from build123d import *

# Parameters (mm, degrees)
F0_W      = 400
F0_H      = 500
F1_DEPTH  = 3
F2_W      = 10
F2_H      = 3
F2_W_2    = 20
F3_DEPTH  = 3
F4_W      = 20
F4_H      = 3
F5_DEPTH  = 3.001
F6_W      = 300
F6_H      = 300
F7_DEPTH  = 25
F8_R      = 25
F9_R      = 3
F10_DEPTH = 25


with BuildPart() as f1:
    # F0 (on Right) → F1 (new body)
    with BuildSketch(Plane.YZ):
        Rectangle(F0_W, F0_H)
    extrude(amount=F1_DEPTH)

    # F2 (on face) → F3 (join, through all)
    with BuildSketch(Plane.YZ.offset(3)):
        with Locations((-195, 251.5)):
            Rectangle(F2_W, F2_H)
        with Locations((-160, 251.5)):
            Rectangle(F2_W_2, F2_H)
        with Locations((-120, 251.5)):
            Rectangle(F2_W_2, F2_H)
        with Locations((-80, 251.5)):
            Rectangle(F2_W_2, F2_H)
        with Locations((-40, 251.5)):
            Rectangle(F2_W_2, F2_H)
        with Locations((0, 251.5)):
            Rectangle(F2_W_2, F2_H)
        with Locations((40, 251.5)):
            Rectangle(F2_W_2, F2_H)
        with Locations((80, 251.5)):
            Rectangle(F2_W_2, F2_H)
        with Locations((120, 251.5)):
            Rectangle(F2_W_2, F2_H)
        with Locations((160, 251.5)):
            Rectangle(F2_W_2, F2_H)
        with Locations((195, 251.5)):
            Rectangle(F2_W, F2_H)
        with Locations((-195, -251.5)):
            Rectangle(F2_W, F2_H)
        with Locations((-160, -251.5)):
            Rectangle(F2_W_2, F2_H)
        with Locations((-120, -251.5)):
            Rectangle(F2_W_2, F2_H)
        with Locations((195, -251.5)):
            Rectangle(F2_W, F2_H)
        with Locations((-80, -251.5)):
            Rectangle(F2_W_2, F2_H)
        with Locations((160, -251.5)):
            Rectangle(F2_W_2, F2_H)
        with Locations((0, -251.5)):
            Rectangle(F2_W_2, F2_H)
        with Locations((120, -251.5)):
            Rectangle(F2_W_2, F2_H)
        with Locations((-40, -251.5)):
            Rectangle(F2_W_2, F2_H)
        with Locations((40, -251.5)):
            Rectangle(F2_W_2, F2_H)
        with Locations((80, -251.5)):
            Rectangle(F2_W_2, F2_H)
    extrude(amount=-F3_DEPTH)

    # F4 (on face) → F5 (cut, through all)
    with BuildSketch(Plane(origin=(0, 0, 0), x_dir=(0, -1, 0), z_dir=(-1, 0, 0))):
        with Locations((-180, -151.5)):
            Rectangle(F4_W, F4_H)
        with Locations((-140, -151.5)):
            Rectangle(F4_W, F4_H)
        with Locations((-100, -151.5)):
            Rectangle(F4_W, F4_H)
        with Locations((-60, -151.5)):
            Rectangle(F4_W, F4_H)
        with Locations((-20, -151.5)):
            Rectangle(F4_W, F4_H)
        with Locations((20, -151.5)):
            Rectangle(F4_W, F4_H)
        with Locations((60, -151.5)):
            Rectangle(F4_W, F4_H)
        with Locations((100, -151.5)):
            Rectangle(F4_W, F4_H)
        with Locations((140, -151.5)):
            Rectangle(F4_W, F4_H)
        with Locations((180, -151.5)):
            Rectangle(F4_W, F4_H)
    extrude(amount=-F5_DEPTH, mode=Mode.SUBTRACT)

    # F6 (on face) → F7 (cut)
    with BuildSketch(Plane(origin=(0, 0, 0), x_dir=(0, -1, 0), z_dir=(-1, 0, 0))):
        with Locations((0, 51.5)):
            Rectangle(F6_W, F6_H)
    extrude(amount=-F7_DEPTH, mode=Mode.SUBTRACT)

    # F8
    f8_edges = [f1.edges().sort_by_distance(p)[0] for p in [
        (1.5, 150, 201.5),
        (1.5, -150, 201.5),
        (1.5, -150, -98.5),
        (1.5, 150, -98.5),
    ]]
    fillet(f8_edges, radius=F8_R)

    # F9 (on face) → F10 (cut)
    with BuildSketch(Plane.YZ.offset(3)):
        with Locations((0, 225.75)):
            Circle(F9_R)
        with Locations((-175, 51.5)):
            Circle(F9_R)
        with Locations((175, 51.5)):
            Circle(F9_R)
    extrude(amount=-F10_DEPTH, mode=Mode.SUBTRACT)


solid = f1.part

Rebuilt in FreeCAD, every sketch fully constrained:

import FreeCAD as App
import Part
import Sketcher


def edges_at(feature, points):
    """Names of the edges that pass closest to the given points."""
    edges = feature.Shape.Edges
    near = lambda p: min(range(len(edges)), key=lambda i: edges[i].distToShape(Part.Vertex(*p))[0])
    return sorted({f"Edge{near(p) + 1}" for p in points})


def add_polygon(sketch, points):
    """Adds a closed chain of lines whose ends are joined by coincident constraints."""
    first, n = sketch.GeometryCount, len(points)
    for a, b in zip(points, points[1:] + points[:1]):
        sketch.addGeometry(Part.LineSegment(App.Vector(*a, 0), App.Vector(*b, 0)), False)
    for i in range(n):
        sketch.addConstraint(Sketcher.Constraint("Coincident", first + i, 2, first + (i + 1) % n, 1))

doc = App.newDocument("Part")
body = doc.addObject("PartDesign::Body", "Body")

# Sketch on YZ plane
sketch1 = body.newObject("Sketcher::SketchObject", "Sketch")
sketch1.AttachmentSupport = (doc.getObject("YZ_Plane"), [""])
sketch1.MapMode = "FlatFace"
add_polygon(sketch1, [(-200, 250), (-200, -250), (200, -250), (200, 250)])  # lines 0-3
sketch1.addConstraint([
    Sketcher.Constraint("Vertical", 0),
    Sketcher.Constraint("Horizontal", 1),
    Sketcher.Constraint("Vertical", 2),
    Sketcher.Constraint("Horizontal", 3),
    Sketcher.Constraint("Symmetric", 0, 2, 2, 2, -1, 1),
    Sketcher.Constraint("DistanceX", 1, 1, 1, 2, 400.0),
    Sketcher.Constraint("DistanceY", 0, 2, 0, 1, 500.0),
])
pad1 = body.newObject("PartDesign::Pad", "Pad")
pad1.Profile = sketch1
pad1.Length = 3

# Sketch on YZ plane
sketch2 = body.newObject("Sketcher::SketchObject", "Sketch001")
sketch2.AttachmentSupport = (doc.getObject("YZ_Plane"), [""])
sketch2.MapMode = "FlatFace"
sketch2.AttachmentOffset = App.Placement(App.Vector(0, 0, 3), App.Rotation())
add_polygon(sketch2, [(-200, 253), (-200, 250), (-190, 250), (-190, 253)])  # lines 0-3
add_polygon(sketch2, [(-170, 253), (-170, 250), (-150, 250), (-150, 253)])  # lines 4-7
add_polygon(sketch2, [(-130, 253), (-130, 250), (-110, 250), (-110, 253)])  # lines 8-11
add_polygon(sketch2, [(-90, 253), (-90, 250), (-70, 250), (-70, 253)])  # lines 12-15
add_polygon(sketch2, [(-50, 253), (-50, 250), (-30, 250), (-30, 253)])  # lines 16-19
add_polygon(sketch2, [(-10, 253), (-10, 250), (10, 250), (10, 253)])  # lines 20-23
add_polygon(sketch2, [(30, 253), (30, 250), (50, 250), (50, 253)])  # lines 24-27
add_polygon(sketch2, [(70, 253), (70, 250), (90, 250), (90, 253)])  # lines 28-31
add_polygon(sketch2, [(110, 253), (110, 250), (130, 250), (130, 253)])  # lines 32-35
add_polygon(sketch2, [(150, 253), (150, 250), (170, 250), (170, 253)])  # lines 36-39
add_polygon(sketch2, [(190, 253), (190, 250), (200, 250), (200, 253)])  # lines 40-43
add_polygon(sketch2, [(-200, -250), (-200, -253), (-190, -253), (-190, -250)])  # lines 44-47
add_polygon(sketch2, [(-170, -250), (-170, -253), (-150, -253), (-150, -250)])  # lines 48-51
add_polygon(sketch2, [(-130, -250), (-130, -253), (-110, -253), (-110, -250)])  # lines 52-55
add_polygon(sketch2, [(190, -250), (190, -253), (200, -253), (200, -250)])  # lines 56-59
add_polygon(sketch2, [(-90, -250), (-90, -253), (-70, -253), (-70, -250)])  # lines 60-63
add_polygon(sketch2, [(150, -250), (150, -253), (170, -253), (170, -250)])  # lines 64-67
add_polygon(sketch2, [(-10, -250), (-10, -253), (10, -253), (10, -250)])  # lines 68-71
add_polygon(sketch2, [(110, -250), (110, -253), (130, -253), (130, -250)])  # lines 72-75
add_polygon(sketch2, [(-50, -250), (-50, -253), (-30, -253), (-30, -250)])  # lines 76-79
add_polygon(sketch2, [(30, -250), (30, -253), (50, -253), (50, -250)])  # lines 80-83
add_polygon(sketch2, [(70, -250), (70, -253), (90, -253), (90, -250)])  # lines 84-87
sketch2.addConstraint([
    Sketcher.Constraint("Vertical", 0),
    Sketcher.Constraint("Horizontal", 1),
    Sketcher.Constraint("Vertical", 2),
    Sketcher.Constraint("Horizontal", 3),
    Sketcher.Constraint("Vertical", 4),
    Sketcher.Constraint("Horizontal", 5),
    Sketcher.Constraint("Vertical", 6),
    Sketcher.Constraint("Horizontal", 7),
    Sketcher.Constraint("Vertical", 8),
    Sketcher.Constraint("Horizontal", 9),
    Sketcher.Constraint("Vertical", 10),
    Sketcher.Constraint("Horizontal", 11),
    Sketcher.Constraint("Vertical", 12),
    Sketcher.Constraint("Horizontal", 13),
    Sketcher.Constraint("Vertical", 14),
    Sketcher.Constraint("Horizontal", 15),
    Sketcher.Constraint("Vertical", 16),
    Sketcher.Constraint("Horizontal", 17),
    Sketcher.Constraint("Vertical", 18),
    Sketcher.Constraint("Horizontal", 19),
    Sketcher.Constraint("Vertical", 20),
    Sketcher.Constraint("Horizontal", 21),
    Sketcher.Constraint("Vertical", 22),
    Sketcher.Constraint("Horizontal", 23),
    Sketcher.Constraint("Vertical", 24),
    Sketcher.Constraint("Horizontal", 25),
    Sketcher.Constraint("Vertical", 26),
    Sketcher.Constraint("Horizontal", 27),
    Sketcher.Constraint("Vertical", 28),
    Sketcher.Constraint("Horizontal", 29),
    Sketcher.Constraint("Vertical", 30),
    Sketcher.Constraint("Horizontal", 31),
    Sketcher.Constraint("Vertical", 32),
    Sketcher.Constraint("Horizontal", 33),
    Sketcher.Constraint("Vertical", 34),
    Sketcher.Constraint("Horizontal", 35),
    Sketcher.Constraint("Vertical", 36),
    Sketcher.Constraint("Horizontal", 37),
    Sketcher.Constraint("Vertical", 38),
    Sketcher.Constraint("Horizontal", 39),
    Sketcher.Constraint("Vertical", 40),
    Sketcher.Constraint("Horizontal", 41),
    Sketcher.Constraint("Vertical", 42),
    Sketcher.Constraint("Horizontal", 43),
    Sketcher.Constraint("Vertical", 44),
    Sketcher.Constraint("Horizontal", 45),
    Sketcher.Constraint("Vertical", 46),
    Sketcher.Constraint("Horizontal", 47),
    Sketcher.Constraint("Vertical", 48),
    Sketcher.Constraint("Horizontal", 49),
    Sketcher.Constraint("Vertical", 50),
    Sketcher.Constraint("Horizontal", 51),
    Sketcher.Constraint("Vertical", 52),
    Sketcher.Constraint("Horizontal", 53),
    Sketcher.Constraint("Vertical", 54),
    Sketcher.Constraint("Horizontal", 55),
    Sketcher.Constraint("Vertical", 56),
    Sketcher.Constraint("Horizontal", 57),
    Sketcher.Constraint("Vertical", 58),
    Sketcher.Constraint("Horizontal", 59),
    Sketcher.Constraint("Vertical", 60),
    Sketcher.Constraint("Horizontal", 61),
    Sketcher.Constraint("Vertical", 62),
    Sketcher.Constraint("Horizontal", 63),
    Sketcher.Constraint("Vertical", 64),
    Sketcher.Constraint("Horizontal", 65),
    Sketcher.Constraint("Vertical", 66),
    Sketcher.Constraint("Horizontal", 67),
    Sketcher.Constraint("Vertical", 68),
    Sketcher.Constraint("Horizontal", 69),
    Sketcher.Constraint("Vertical", 70),
    Sketcher.Constraint("Horizontal", 71),
    Sketcher.Constraint("Vertical", 72),
    Sketcher.Constraint("Horizontal", 73),
    Sketcher.Constraint("Vertical", 74),
    Sketcher.Constraint("Horizontal", 75),
    Sketcher.Constraint("Vertical", 76),
    Sketcher.Constraint("Horizontal", 77),
    Sketcher.Constraint("Vertical", 78),
    Sketcher.Constraint("Horizontal", 79),
    Sketcher.Constraint("Vertical", 80),
    Sketcher.Constraint("Horizontal", 81),
    Sketcher.Constraint("Vertical", 82),
    Sketcher.Constraint("Horizontal", 83),
    Sketcher.Constraint("Vertical", 84),
    Sketcher.Constraint("Horizontal", 85),
    Sketcher.Constraint("Vertical", 86),
    Sketcher.Constraint("Horizontal", 87),
    Sketcher.Constraint("Symmetric", 42, 2, 44, 2, -1, 1),
    Sketcher.Constraint("Symmetric", 40, 2, 46, 2, -1, 1),
    Sketcher.Constraint("Symmetric", 38, 2, 48, 2, -1, 1),
    Sketcher.Constraint("Symmetric", 36, 2, 50, 2, -1, 1),
    Sketcher.Constraint("Symmetric", 34, 2, 52, 2, -1, 1),
    Sketcher.Constraint("Symmetric", 32, 2, 54, 2, -1, 1),
    Sketcher.Constraint("Symmetric", 2, 2, 56, 2, -1, 1),
    Sketcher.Constraint("Symmetric", 0, 2, 58, 2, -1, 1),
    Sketcher.Constraint("Symmetric", 30, 2, 60, 2, -1, 1),
    Sketcher.Constraint("Symmetric", 28, 2, 62, 2, -1, 1),
    Sketcher.Constraint("Symmetric", 6, 2, 64, 2, -1, 1),
    Sketcher.Constraint("Symmetric", 4, 2, 66, 2, -1, 1),
    Sketcher.Constraint("Symmetric", 22, 2, 68, 2, -1, 1),
    Sketcher.Constraint("Symmetric", 20, 2, 70, 2, -1, 1),
    Sketcher.Constraint("Symmetric", 10, 2, 72, 2, -1, 1),
    Sketcher.Constraint("Symmetric", 8, 2, 74, 2, -1, 1),
    Sketcher.Constraint("Symmetric", 26, 2, 76, 2, -1, 1),
    Sketcher.Constraint("Symmetric", 24, 2, 78, 2, -1, 1),
    Sketcher.Constraint("Symmetric", 18, 2, 80, 2, -1, 1),
    Sketcher.Constraint("Symmetric", 16, 2, 82, 2, -1, 1),
    Sketcher.Constraint("Symmetric", 14, 2, 84, 2, -1, 1),
    Sketcher.Constraint("Symmetric", 12, 2, 86, 2, -1, 1),
    Sketcher.Constraint("Symmetric", 17, 2, 24, 2, -2),
    Sketcher.Constraint("Symmetric", 19, 2, 26, 2, -2),
    Sketcher.Constraint("Symmetric", 13, 2, 28, 2, -2),
    Sketcher.Constraint("Symmetric", 15, 2, 30, 2, -2),
    Sketcher.Constraint("Symmetric", 9, 2, 32, 2, -2),
    Sketcher.Constraint("Symmetric", 11, 2, 34, 2, -2),
    Sketcher.Constraint("Symmetric", 5, 2, 36, 2, -2),
    Sketcher.Constraint("Symmetric", 7, 2, 38, 2, -2),
    Sketcher.Constraint("Symmetric", 1, 2, 40, 2, -2),
    Sketcher.Constraint("Symmetric", 3, 2, 42, 2, -2),
    Sketcher.Constraint("Horizontal", 1, 2, 4, 2),
    Sketcher.Constraint("Horizontal", 3, 2, 6, 2),
    Sketcher.Constraint("Horizontal", 5, 2, 8, 2),
    Sketcher.Constraint("Horizontal", 7, 2, 10, 2),
    Sketcher.Constraint("Horizontal", 9, 2, 12, 2),
    Sketcher.Constraint("Horizontal", 11, 2, 14, 2),
    Sketcher.Constraint("Horizontal", 13, 2, 16, 2),
    Sketcher.Constraint("Horizontal", 15, 2, 18, 2),
    Sketcher.Constraint("Horizontal", 17, 2, 20, 2),
    Sketcher.Constraint("Horizontal", 19, 2, 22, 2),
    Sketcher.Constraint("Vertical", 23, 2, 68, 2),
    Sketcher.Constraint("Equal", 7, 9),
    Sketcher.Constraint("Equal", 11, 13),
    Sketcher.Constraint("Equal", 15, 17),
    Sketcher.Constraint("Equal", 19, 21),
    Sketcher.Constraint("DistanceX", 1, 1, 1, 2, 10.0),
    Sketcher.Constraint("DistanceX", 5, 1, 5, 2, 20.0),
    Sketcher.Constraint("DistanceY", 0, 2, 0, 1, 3.0),
    Sketcher.Constraint("DistanceX", 0, 2, -1, 1, 200.0),
    Sketcher.Constraint("DistanceY", -1, 1, 0, 2, 250.0),
    Sketcher.Constraint("DistanceX", 4, 2, -1, 1, 170.0),
    Sketcher.Constraint("DistanceX", 8, 2, -1, 1, 130.0),
    Sketcher.Constraint("DistanceX", 12, 2, -1, 1, 90.0),
    Sketcher.Constraint("DistanceX", 16, 2, -1, 1, 50.0),
])
pad2 = body.newObject("PartDesign::Pad", "Pad001")
pad2.Profile = sketch2
pad2.Type = "UpToLast"
pad2.Reversed = True

# Sketch on YZ plane
sketch3 = body.newObject("Sketcher::SketchObject", "Sketch002")
sketch3.AttachmentSupport = (doc.getObject("YZ_Plane"), [""])
sketch3.MapMode = "FlatFace"
add_polygon(sketch3, [(190, -150), (190, -153), (170, -153), (170, -150)])  # lines 0-3
add_polygon(sketch3, [(150, -150), (150, -153), (130, -153), (130, -150)])  # lines 4-7
add_polygon(sketch3, [(110, -150), (110, -153), (90, -153), (90, -150)])  # lines 8-11
add_polygon(sketch3, [(70, -150), (70, -153), (50, -153), (50, -150)])  # lines 12-15
add_polygon(sketch3, [(30, -150), (30, -153), (10, -153), (10, -150)])  # lines 16-19
add_polygon(sketch3, [(-10, -150), (-10, -153), (-30, -153), (-30, -150)])  # lines 20-23
add_polygon(sketch3, [(-50, -150), (-50, -153), (-70, -153), (-70, -150)])  # lines 24-27
add_polygon(sketch3, [(-90, -150), (-90, -153), (-110, -153), (-110, -150)])  # lines 28-31
add_polygon(sketch3, [(-130, -150), (-130, -153), (-150, -153), (-150, -150)])  # lines 32-35
add_polygon(sketch3, [(-170, -150), (-170, -153), (-190, -153), (-190, -150)])  # lines 36-39
sketch3.addConstraint([
    Sketcher.Constraint("Vertical", 0),
    Sketcher.Constraint("Horizontal", 1),
    Sketcher.Constraint("Vertical", 2),
    Sketcher.Constraint("Horizontal", 3),
    Sketcher.Constraint("Vertical", 4),
    Sketcher.Constraint("Horizontal", 5),
    Sketcher.Constraint("Vertical", 6),
    Sketcher.Constraint("Horizontal", 7),
    Sketcher.Constraint("Vertical", 8),
    Sketcher.Constraint("Horizontal", 9),
    Sketcher.Constraint("Vertical", 10),
    Sketcher.Constraint("Horizontal", 11),
    Sketcher.Constraint("Vertical", 12),
    Sketcher.Constraint("Horizontal", 13),
    Sketcher.Constraint("Vertical", 14),
    Sketcher.Constraint("Horizontal", 15),
    Sketcher.Constraint("Vertical", 16),
    Sketcher.Constraint("Horizontal", 17),
    Sketcher.Constraint("Vertical", 18),
    Sketcher.Constraint("Horizontal", 19),
    Sketcher.Constraint("Vertical", 20),
    Sketcher.Constraint("Horizontal", 21),
    Sketcher.Constraint("Vertical", 22),
    Sketcher.Constraint("Horizontal", 23),
    Sketcher.Constraint("Vertical", 24),
    Sketcher.Constraint("Horizontal", 25),
    Sketcher.Constraint("Vertical", 26),
    Sketcher.Constraint("Horizontal", 27),
    Sketcher.Constraint("Vertical", 28),
    Sketcher.Constraint("Horizontal", 29),
    Sketcher.Constraint("Vertical", 30),
    Sketcher.Constraint("Horizontal", 31),
    Sketcher.Constraint("Vertical", 32),
    Sketcher.Constraint("Horizontal", 33),
    Sketcher.Constraint("Vertical", 34),
    Sketcher.Constraint("Horizontal", 35),
    Sketcher.Constraint("Vertical", 36),
    Sketcher.Constraint("Horizontal", 37),
    Sketcher.Constraint("Vertical", 38),
    Sketcher.Constraint("Horizontal", 39),
    Sketcher.Constraint("Symmetric", 17, 2, 20, 2, -2),
    Sketcher.Constraint("Symmetric", 19, 2, 22, 2, -2),
    Sketcher.Constraint("Symmetric", 13, 2, 24, 2, -2),
    Sketcher.Constraint("Symmetric", 15, 2, 26, 2, -2),
    Sketcher.Constraint("Symmetric", 9, 2, 28, 2, -2),
    Sketcher.Constraint("Symmetric", 11, 2, 30, 2, -2),
    Sketcher.Constraint("Symmetric", 5, 2, 32, 2, -2),
    Sketcher.Constraint("Symmetric", 7, 2, 34, 2, -2),
    Sketcher.Constraint("Symmetric", 1, 2, 36, 2, -2),
    Sketcher.Constraint("Symmetric", 3, 2, 38, 2, -2),
    Sketcher.Constraint("Horizontal", 1, 2, 4, 2),
    Sketcher.Constraint("Horizontal", 3, 2, 6, 2),
    Sketcher.Constraint("Horizontal", 5, 2, 8, 2),
    Sketcher.Constraint("Horizontal", 7, 2, 10, 2),
    Sketcher.Constraint("Horizontal", 9, 2, 12, 2),
    Sketcher.Constraint("Horizontal", 11, 2, 14, 2),
    Sketcher.Constraint("Horizontal", 13, 2, 16, 2),
    Sketcher.Constraint("Horizontal", 15, 2, 18, 2),
    Sketcher.Constraint("Equal", 3, 5),
    Sketcher.Constraint("Equal", 7, 9),
    Sketcher.Constraint("Equal", 11, 13),
    Sketcher.Constraint("Equal", 15, 17),
    Sketcher.Constraint("DistanceX", 1, 2, 1, 1, 20.0),
    Sketcher.Constraint("DistanceY", 0, 2, 0, 1, 3.0),
    Sketcher.Constraint("DistanceX", -1, 1, 0, 2, 190.0),
    Sketcher.Constraint("DistanceY", 0, 2, -1, 1, 153.0),
    Sketcher.Constraint("DistanceX", -1, 1, 4, 2, 150.0),
    Sketcher.Constraint("DistanceX", -1, 1, 8, 2, 110.0),
    Sketcher.Constraint("DistanceX", -1, 1, 12, 2, 70.0),
    Sketcher.Constraint("DistanceX", -1, 1, 16, 2, 30.0),
])
pocket1 = body.newObject("PartDesign::Pocket", "Pocket")
pocket1.Profile = sketch3
pocket1.Type = "ThroughAll"
pocket1.Reversed = True

# Sketch on YZ plane
sketch4 = body.newObject("Sketcher::SketchObject", "Sketch003")
sketch4.AttachmentSupport = (doc.getObject("YZ_Plane"), [""])
sketch4.MapMode = "FlatFace"
add_polygon(sketch4, [(150, 202), (150, -98), (-150, -98), (-150, 202)])  # lines 0-3
sketch4.addConstraint([
    Sketcher.Constraint("Vertical", 0),
    Sketcher.Constraint("Horizontal", 1),
    Sketcher.Constraint("Vertical", 2),
    Sketcher.Constraint("Horizontal", 3),
    Sketcher.Constraint("Equal", 3, 0),
    Sketcher.Constraint("DistanceX", 1, 2, 1, 1, 300.0),
    Sketcher.Constraint("DistanceX", -1, 1, 0, 2, 150.0),
    Sketcher.Constraint("DistanceY", 0, 2, -1, 1, 98.5),
])
pocket2 = body.newObject("PartDesign::Pocket", "Pocket001")
pocket2.Profile = sketch4
pocket2.Length = 25
pocket2.Reversed = True
doc.recompute()

fillet = body.newObject("PartDesign::Fillet", "Fillet")
fillet.Base = (pocket2, edges_at(pocket2, [
    (1.5, 150, 201.5),
    (1.5, -150, 201.5),
    (1.5, -150, -98.5),
    (1.5, 150, -98.5),
]))
fillet.Radius = 25

# Sketch on YZ plane
sketch5 = body.newObject("Sketcher::SketchObject", "Sketch004")
sketch5.AttachmentSupport = (doc.getObject("YZ_Plane"), [""])
sketch5.MapMode = "FlatFace"
sketch5.AttachmentOffset = App.Placement(App.Vector(0, 0, 3), App.Rotation())
sketch5.addGeometry([
    Part.Circle(App.Vector(0, 225.8, 0), App.Vector(0, 0, 1), 3),
    Part.Circle(App.Vector(-175, 51.5, 0), App.Vector(0, 0, 1), 3),
    Part.Circle(App.Vector(175, 51.5, 0), App.Vector(0, 0, 1), 3),
], False)
sketch5.addConstraint([
    Sketcher.Constraint("Equal", 0, 1),
    Sketcher.Constraint("Equal", 1, 2),
    Sketcher.Constraint("Symmetric", 1, 3, 2, 3, -2),
    Sketcher.Constraint("PointOnObject", 0, 3, -2),
    Sketcher.Constraint("Diameter", 0, 6.0),
    Sketcher.Constraint("DistanceX", 1, 3, -1, 1, 175.0),
    Sketcher.Constraint("DistanceY", -1, 1, 1, 3, 51.5),
    Sketcher.Constraint("DistanceY", -1, 1, 0, 3, 225.75),
])
pocket3 = body.newObject("PartDesign::Pocket", "Pocket002")
pocket3.Profile = sketch5
pocket3.Length = 25

doc.recompute()
